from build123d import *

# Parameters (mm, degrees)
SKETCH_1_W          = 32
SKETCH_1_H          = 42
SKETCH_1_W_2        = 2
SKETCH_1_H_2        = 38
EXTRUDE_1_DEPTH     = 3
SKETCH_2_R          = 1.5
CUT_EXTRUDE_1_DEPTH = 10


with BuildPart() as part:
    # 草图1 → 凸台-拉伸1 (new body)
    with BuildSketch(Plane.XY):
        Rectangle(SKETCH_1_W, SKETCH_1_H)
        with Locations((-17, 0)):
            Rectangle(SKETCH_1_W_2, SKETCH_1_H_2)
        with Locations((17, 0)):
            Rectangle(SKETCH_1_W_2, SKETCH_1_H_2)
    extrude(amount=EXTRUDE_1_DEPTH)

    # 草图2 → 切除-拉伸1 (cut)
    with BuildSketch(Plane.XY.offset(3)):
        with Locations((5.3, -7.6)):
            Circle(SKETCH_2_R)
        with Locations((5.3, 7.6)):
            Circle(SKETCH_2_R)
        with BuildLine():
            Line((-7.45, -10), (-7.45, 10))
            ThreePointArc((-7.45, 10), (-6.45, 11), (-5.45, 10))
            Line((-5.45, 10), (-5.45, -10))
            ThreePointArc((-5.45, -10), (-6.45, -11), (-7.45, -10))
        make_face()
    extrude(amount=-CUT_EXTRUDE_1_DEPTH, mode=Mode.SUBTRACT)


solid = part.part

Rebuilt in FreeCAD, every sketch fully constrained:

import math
import FreeCAD as App
import Part
import Sketcher

V = App.Vector


def add_polygon(sketch, points):
    """Adds a closed chain of lines whose ends are joined by coincident constraints."""
    first, n = sketch.GeometryCount, len(points)
    for a, b in zip(points, points[1:] + points[:1]):
        sketch.addGeometry(Part.LineSegment(App.Vector(*a, 0), App.Vector(*b, 0)), False)
    for i in range(n):
        sketch.addConstraint(Sketcher.Constraint("Coincident", first + i, 2, first + (i + 1) % n, 1))

doc = App.newDocument("Part")
body = doc.addObject("PartDesign::Body", "Body")

# Sketch on XY plane
sketch1 = body.newObject("Sketcher::SketchObject", "Sketch")
sketch1.AttachmentSupport = (doc.getObject("XY_Plane"), [""])
sketch1.MapMode = "FlatFace"
add_polygon(sketch1, [(-16, -19), (-16, -21), (16, -21), (16, -19), (18, -19), (18, 19), (16, 19), (16, 21), (-16, 21), (-16, 19), (-18, 19), (-18, -19)])  # lines 0-11
sketch1.addConstraint(Sketcher.Constraint("Vertical", 0))
sketch1.addConstraint(Sketcher.Constraint("Horizontal", 1))
sketch1.addConstraint(Sketcher.Constraint("Vertical", 2))
sketch1.addConstraint(Sketcher.Constraint("Horizontal", 3))
sketch1.addConstraint(Sketcher.Constraint("Vertical", 4))
sketch1.addConstraint(Sketcher.Constraint("Horizontal", 5))
sketch1.addConstraint(Sketcher.Constraint("Vertical", 6))
sketch1.addConstraint(Sketcher.Constraint("Horizontal", 7))
sketch1.addConstraint(Sketcher.Constraint("Vertical", 8))
sketch1.addConstraint(Sketcher.Constraint("Horizontal", 9))
sketch1.addConstraint(Sketcher.Constraint("Vertical", 10))
sketch1.addConstraint(Sketcher.Constraint("Horizontal", 11))
sketch1.addConstraint(Sketcher.Constraint("Symmetric", 0, 2, 6, 2, -1, 1))
sketch1.addConstraint(Sketcher.Constraint("Symmetric", 2, 2, 8, 2, -1, 1))
sketch1.addConstraint(Sketcher.Constraint("Symmetric", 4, 2, 10, 2, -1, 1))
sketch1.addConstraint(Sketcher.Constraint("Symmetric", 5, 2, 8, 2, -2))
sketch1.addConstraint(Sketcher.Constraint("Equal", 11, 0))
sketch1.addConstraint(Sketcher.Constraint("DistanceX", 1, 1, 1, 2, 32.0))
sketch1.addConstraint(Sketcher.Constraint("DistanceX", 3, 1, 3, 2, 2.0))
sketch1.addConstraint(Sketcher.Constraint("DistanceY", 4, 1, 4, 2, 38.0))
pad1 = body.newObject("PartDesign::Pad", "Pad")
pad1.Profile = sketch1
pad1.Length = 3

# Sketch on XY plane
sketch2 = body.newObject("Sketcher::SketchObject", "Sketch001")
sketch2.AttachmentSupport = (doc.getObject("XY_Plane"), [""])
sketch2.MapMode = "FlatFace"
sketch2.AttachmentOffset = App.Placement(V(0, 0, 3), App.Rotation())
sketch2.addGeometry(Part.Circle(V(5.3, -7.6, 0), V(0, 0, 1), 1.5), False)
sketch2.addGeometry(Part.Circle(V(5.3, 7.6, 0), V(0, 0, 1), 1.5), False)
sketch2.addGeometry(Part.LineSegment(V(-7.45, 10, 0), V(-7.45, -10, 0)), False)
sketch2.addGeometry(Part.ArcOfCircle(Part.Circle(V(-6.45, -10, 0), V(0, 0, 1), 1), math.radians(180), math.radians(360)), False)
sketch2.addGeometry(Part.LineSegment(V(-5.45, -10, 0), V(-5.45, 10, 0)), False)
sketch2.addGeometry(Part.ArcOfCircle(Part.Circle(V(-6.45, 10, 0), V(0, 0, 1), 1), math.radians(0), math.radians(180)), False)
sketch2.addConstraint(Sketcher.Constraint("Tangent", 2, 2, 3, 1))
sketch2.addConstraint(Sketcher.Constraint("Tangent", 3, 2, 4, 1))
sketch2.addConstraint(Sketcher.Constraint("Tangent", 4, 2, 5, 1))
sketch2.addConstraint(Sketcher.Constraint("Tangent", 5, 2, 2, 1))
sketch2.addConstraint(Sketcher.Constraint("Vertical", 2))
sketch2.addConstraint(Sketcher.Constraint("Vertical", 4))
sketch2.addConstraint(Sketcher.Constraint("Equal", 0, 1))
sketch2.addConstraint(Sketcher.Constraint("Symmetric", 0, 3, 1, 3, -1))
sketch2.addConstraint(Sketcher.Constraint("Diameter", 0, 3.0))
sketch2.addConstraint(Sketcher.Constraint("Radius", 3, 1.0))
sketch2.addConstraint(Sketcher.Constraint("DistanceY", 2, 2, 2, 1, 20.0))
sketch2.addConstraint(Sketcher.Constraint("DistanceY", 3, 3, -1, 1, 10.0))
sketch2.addConstraint(Sketcher.Constraint("DistanceX", -1, 1, 0, 3, 5.3))
sketch2.addConstraint(Sketcher.Constraint("DistanceY", 0, 3, -1, 1, 7.6))
sketch2.addConstraint(Sketcher.Constraint("DistanceX", 3, 3, -1, 1, 6.45))
pocket1 = body.newObject("PartDesign::Pocket", "Pocket")
pocket1.Profile = sketch2
pocket1.Length = 10

doc.recompute()
